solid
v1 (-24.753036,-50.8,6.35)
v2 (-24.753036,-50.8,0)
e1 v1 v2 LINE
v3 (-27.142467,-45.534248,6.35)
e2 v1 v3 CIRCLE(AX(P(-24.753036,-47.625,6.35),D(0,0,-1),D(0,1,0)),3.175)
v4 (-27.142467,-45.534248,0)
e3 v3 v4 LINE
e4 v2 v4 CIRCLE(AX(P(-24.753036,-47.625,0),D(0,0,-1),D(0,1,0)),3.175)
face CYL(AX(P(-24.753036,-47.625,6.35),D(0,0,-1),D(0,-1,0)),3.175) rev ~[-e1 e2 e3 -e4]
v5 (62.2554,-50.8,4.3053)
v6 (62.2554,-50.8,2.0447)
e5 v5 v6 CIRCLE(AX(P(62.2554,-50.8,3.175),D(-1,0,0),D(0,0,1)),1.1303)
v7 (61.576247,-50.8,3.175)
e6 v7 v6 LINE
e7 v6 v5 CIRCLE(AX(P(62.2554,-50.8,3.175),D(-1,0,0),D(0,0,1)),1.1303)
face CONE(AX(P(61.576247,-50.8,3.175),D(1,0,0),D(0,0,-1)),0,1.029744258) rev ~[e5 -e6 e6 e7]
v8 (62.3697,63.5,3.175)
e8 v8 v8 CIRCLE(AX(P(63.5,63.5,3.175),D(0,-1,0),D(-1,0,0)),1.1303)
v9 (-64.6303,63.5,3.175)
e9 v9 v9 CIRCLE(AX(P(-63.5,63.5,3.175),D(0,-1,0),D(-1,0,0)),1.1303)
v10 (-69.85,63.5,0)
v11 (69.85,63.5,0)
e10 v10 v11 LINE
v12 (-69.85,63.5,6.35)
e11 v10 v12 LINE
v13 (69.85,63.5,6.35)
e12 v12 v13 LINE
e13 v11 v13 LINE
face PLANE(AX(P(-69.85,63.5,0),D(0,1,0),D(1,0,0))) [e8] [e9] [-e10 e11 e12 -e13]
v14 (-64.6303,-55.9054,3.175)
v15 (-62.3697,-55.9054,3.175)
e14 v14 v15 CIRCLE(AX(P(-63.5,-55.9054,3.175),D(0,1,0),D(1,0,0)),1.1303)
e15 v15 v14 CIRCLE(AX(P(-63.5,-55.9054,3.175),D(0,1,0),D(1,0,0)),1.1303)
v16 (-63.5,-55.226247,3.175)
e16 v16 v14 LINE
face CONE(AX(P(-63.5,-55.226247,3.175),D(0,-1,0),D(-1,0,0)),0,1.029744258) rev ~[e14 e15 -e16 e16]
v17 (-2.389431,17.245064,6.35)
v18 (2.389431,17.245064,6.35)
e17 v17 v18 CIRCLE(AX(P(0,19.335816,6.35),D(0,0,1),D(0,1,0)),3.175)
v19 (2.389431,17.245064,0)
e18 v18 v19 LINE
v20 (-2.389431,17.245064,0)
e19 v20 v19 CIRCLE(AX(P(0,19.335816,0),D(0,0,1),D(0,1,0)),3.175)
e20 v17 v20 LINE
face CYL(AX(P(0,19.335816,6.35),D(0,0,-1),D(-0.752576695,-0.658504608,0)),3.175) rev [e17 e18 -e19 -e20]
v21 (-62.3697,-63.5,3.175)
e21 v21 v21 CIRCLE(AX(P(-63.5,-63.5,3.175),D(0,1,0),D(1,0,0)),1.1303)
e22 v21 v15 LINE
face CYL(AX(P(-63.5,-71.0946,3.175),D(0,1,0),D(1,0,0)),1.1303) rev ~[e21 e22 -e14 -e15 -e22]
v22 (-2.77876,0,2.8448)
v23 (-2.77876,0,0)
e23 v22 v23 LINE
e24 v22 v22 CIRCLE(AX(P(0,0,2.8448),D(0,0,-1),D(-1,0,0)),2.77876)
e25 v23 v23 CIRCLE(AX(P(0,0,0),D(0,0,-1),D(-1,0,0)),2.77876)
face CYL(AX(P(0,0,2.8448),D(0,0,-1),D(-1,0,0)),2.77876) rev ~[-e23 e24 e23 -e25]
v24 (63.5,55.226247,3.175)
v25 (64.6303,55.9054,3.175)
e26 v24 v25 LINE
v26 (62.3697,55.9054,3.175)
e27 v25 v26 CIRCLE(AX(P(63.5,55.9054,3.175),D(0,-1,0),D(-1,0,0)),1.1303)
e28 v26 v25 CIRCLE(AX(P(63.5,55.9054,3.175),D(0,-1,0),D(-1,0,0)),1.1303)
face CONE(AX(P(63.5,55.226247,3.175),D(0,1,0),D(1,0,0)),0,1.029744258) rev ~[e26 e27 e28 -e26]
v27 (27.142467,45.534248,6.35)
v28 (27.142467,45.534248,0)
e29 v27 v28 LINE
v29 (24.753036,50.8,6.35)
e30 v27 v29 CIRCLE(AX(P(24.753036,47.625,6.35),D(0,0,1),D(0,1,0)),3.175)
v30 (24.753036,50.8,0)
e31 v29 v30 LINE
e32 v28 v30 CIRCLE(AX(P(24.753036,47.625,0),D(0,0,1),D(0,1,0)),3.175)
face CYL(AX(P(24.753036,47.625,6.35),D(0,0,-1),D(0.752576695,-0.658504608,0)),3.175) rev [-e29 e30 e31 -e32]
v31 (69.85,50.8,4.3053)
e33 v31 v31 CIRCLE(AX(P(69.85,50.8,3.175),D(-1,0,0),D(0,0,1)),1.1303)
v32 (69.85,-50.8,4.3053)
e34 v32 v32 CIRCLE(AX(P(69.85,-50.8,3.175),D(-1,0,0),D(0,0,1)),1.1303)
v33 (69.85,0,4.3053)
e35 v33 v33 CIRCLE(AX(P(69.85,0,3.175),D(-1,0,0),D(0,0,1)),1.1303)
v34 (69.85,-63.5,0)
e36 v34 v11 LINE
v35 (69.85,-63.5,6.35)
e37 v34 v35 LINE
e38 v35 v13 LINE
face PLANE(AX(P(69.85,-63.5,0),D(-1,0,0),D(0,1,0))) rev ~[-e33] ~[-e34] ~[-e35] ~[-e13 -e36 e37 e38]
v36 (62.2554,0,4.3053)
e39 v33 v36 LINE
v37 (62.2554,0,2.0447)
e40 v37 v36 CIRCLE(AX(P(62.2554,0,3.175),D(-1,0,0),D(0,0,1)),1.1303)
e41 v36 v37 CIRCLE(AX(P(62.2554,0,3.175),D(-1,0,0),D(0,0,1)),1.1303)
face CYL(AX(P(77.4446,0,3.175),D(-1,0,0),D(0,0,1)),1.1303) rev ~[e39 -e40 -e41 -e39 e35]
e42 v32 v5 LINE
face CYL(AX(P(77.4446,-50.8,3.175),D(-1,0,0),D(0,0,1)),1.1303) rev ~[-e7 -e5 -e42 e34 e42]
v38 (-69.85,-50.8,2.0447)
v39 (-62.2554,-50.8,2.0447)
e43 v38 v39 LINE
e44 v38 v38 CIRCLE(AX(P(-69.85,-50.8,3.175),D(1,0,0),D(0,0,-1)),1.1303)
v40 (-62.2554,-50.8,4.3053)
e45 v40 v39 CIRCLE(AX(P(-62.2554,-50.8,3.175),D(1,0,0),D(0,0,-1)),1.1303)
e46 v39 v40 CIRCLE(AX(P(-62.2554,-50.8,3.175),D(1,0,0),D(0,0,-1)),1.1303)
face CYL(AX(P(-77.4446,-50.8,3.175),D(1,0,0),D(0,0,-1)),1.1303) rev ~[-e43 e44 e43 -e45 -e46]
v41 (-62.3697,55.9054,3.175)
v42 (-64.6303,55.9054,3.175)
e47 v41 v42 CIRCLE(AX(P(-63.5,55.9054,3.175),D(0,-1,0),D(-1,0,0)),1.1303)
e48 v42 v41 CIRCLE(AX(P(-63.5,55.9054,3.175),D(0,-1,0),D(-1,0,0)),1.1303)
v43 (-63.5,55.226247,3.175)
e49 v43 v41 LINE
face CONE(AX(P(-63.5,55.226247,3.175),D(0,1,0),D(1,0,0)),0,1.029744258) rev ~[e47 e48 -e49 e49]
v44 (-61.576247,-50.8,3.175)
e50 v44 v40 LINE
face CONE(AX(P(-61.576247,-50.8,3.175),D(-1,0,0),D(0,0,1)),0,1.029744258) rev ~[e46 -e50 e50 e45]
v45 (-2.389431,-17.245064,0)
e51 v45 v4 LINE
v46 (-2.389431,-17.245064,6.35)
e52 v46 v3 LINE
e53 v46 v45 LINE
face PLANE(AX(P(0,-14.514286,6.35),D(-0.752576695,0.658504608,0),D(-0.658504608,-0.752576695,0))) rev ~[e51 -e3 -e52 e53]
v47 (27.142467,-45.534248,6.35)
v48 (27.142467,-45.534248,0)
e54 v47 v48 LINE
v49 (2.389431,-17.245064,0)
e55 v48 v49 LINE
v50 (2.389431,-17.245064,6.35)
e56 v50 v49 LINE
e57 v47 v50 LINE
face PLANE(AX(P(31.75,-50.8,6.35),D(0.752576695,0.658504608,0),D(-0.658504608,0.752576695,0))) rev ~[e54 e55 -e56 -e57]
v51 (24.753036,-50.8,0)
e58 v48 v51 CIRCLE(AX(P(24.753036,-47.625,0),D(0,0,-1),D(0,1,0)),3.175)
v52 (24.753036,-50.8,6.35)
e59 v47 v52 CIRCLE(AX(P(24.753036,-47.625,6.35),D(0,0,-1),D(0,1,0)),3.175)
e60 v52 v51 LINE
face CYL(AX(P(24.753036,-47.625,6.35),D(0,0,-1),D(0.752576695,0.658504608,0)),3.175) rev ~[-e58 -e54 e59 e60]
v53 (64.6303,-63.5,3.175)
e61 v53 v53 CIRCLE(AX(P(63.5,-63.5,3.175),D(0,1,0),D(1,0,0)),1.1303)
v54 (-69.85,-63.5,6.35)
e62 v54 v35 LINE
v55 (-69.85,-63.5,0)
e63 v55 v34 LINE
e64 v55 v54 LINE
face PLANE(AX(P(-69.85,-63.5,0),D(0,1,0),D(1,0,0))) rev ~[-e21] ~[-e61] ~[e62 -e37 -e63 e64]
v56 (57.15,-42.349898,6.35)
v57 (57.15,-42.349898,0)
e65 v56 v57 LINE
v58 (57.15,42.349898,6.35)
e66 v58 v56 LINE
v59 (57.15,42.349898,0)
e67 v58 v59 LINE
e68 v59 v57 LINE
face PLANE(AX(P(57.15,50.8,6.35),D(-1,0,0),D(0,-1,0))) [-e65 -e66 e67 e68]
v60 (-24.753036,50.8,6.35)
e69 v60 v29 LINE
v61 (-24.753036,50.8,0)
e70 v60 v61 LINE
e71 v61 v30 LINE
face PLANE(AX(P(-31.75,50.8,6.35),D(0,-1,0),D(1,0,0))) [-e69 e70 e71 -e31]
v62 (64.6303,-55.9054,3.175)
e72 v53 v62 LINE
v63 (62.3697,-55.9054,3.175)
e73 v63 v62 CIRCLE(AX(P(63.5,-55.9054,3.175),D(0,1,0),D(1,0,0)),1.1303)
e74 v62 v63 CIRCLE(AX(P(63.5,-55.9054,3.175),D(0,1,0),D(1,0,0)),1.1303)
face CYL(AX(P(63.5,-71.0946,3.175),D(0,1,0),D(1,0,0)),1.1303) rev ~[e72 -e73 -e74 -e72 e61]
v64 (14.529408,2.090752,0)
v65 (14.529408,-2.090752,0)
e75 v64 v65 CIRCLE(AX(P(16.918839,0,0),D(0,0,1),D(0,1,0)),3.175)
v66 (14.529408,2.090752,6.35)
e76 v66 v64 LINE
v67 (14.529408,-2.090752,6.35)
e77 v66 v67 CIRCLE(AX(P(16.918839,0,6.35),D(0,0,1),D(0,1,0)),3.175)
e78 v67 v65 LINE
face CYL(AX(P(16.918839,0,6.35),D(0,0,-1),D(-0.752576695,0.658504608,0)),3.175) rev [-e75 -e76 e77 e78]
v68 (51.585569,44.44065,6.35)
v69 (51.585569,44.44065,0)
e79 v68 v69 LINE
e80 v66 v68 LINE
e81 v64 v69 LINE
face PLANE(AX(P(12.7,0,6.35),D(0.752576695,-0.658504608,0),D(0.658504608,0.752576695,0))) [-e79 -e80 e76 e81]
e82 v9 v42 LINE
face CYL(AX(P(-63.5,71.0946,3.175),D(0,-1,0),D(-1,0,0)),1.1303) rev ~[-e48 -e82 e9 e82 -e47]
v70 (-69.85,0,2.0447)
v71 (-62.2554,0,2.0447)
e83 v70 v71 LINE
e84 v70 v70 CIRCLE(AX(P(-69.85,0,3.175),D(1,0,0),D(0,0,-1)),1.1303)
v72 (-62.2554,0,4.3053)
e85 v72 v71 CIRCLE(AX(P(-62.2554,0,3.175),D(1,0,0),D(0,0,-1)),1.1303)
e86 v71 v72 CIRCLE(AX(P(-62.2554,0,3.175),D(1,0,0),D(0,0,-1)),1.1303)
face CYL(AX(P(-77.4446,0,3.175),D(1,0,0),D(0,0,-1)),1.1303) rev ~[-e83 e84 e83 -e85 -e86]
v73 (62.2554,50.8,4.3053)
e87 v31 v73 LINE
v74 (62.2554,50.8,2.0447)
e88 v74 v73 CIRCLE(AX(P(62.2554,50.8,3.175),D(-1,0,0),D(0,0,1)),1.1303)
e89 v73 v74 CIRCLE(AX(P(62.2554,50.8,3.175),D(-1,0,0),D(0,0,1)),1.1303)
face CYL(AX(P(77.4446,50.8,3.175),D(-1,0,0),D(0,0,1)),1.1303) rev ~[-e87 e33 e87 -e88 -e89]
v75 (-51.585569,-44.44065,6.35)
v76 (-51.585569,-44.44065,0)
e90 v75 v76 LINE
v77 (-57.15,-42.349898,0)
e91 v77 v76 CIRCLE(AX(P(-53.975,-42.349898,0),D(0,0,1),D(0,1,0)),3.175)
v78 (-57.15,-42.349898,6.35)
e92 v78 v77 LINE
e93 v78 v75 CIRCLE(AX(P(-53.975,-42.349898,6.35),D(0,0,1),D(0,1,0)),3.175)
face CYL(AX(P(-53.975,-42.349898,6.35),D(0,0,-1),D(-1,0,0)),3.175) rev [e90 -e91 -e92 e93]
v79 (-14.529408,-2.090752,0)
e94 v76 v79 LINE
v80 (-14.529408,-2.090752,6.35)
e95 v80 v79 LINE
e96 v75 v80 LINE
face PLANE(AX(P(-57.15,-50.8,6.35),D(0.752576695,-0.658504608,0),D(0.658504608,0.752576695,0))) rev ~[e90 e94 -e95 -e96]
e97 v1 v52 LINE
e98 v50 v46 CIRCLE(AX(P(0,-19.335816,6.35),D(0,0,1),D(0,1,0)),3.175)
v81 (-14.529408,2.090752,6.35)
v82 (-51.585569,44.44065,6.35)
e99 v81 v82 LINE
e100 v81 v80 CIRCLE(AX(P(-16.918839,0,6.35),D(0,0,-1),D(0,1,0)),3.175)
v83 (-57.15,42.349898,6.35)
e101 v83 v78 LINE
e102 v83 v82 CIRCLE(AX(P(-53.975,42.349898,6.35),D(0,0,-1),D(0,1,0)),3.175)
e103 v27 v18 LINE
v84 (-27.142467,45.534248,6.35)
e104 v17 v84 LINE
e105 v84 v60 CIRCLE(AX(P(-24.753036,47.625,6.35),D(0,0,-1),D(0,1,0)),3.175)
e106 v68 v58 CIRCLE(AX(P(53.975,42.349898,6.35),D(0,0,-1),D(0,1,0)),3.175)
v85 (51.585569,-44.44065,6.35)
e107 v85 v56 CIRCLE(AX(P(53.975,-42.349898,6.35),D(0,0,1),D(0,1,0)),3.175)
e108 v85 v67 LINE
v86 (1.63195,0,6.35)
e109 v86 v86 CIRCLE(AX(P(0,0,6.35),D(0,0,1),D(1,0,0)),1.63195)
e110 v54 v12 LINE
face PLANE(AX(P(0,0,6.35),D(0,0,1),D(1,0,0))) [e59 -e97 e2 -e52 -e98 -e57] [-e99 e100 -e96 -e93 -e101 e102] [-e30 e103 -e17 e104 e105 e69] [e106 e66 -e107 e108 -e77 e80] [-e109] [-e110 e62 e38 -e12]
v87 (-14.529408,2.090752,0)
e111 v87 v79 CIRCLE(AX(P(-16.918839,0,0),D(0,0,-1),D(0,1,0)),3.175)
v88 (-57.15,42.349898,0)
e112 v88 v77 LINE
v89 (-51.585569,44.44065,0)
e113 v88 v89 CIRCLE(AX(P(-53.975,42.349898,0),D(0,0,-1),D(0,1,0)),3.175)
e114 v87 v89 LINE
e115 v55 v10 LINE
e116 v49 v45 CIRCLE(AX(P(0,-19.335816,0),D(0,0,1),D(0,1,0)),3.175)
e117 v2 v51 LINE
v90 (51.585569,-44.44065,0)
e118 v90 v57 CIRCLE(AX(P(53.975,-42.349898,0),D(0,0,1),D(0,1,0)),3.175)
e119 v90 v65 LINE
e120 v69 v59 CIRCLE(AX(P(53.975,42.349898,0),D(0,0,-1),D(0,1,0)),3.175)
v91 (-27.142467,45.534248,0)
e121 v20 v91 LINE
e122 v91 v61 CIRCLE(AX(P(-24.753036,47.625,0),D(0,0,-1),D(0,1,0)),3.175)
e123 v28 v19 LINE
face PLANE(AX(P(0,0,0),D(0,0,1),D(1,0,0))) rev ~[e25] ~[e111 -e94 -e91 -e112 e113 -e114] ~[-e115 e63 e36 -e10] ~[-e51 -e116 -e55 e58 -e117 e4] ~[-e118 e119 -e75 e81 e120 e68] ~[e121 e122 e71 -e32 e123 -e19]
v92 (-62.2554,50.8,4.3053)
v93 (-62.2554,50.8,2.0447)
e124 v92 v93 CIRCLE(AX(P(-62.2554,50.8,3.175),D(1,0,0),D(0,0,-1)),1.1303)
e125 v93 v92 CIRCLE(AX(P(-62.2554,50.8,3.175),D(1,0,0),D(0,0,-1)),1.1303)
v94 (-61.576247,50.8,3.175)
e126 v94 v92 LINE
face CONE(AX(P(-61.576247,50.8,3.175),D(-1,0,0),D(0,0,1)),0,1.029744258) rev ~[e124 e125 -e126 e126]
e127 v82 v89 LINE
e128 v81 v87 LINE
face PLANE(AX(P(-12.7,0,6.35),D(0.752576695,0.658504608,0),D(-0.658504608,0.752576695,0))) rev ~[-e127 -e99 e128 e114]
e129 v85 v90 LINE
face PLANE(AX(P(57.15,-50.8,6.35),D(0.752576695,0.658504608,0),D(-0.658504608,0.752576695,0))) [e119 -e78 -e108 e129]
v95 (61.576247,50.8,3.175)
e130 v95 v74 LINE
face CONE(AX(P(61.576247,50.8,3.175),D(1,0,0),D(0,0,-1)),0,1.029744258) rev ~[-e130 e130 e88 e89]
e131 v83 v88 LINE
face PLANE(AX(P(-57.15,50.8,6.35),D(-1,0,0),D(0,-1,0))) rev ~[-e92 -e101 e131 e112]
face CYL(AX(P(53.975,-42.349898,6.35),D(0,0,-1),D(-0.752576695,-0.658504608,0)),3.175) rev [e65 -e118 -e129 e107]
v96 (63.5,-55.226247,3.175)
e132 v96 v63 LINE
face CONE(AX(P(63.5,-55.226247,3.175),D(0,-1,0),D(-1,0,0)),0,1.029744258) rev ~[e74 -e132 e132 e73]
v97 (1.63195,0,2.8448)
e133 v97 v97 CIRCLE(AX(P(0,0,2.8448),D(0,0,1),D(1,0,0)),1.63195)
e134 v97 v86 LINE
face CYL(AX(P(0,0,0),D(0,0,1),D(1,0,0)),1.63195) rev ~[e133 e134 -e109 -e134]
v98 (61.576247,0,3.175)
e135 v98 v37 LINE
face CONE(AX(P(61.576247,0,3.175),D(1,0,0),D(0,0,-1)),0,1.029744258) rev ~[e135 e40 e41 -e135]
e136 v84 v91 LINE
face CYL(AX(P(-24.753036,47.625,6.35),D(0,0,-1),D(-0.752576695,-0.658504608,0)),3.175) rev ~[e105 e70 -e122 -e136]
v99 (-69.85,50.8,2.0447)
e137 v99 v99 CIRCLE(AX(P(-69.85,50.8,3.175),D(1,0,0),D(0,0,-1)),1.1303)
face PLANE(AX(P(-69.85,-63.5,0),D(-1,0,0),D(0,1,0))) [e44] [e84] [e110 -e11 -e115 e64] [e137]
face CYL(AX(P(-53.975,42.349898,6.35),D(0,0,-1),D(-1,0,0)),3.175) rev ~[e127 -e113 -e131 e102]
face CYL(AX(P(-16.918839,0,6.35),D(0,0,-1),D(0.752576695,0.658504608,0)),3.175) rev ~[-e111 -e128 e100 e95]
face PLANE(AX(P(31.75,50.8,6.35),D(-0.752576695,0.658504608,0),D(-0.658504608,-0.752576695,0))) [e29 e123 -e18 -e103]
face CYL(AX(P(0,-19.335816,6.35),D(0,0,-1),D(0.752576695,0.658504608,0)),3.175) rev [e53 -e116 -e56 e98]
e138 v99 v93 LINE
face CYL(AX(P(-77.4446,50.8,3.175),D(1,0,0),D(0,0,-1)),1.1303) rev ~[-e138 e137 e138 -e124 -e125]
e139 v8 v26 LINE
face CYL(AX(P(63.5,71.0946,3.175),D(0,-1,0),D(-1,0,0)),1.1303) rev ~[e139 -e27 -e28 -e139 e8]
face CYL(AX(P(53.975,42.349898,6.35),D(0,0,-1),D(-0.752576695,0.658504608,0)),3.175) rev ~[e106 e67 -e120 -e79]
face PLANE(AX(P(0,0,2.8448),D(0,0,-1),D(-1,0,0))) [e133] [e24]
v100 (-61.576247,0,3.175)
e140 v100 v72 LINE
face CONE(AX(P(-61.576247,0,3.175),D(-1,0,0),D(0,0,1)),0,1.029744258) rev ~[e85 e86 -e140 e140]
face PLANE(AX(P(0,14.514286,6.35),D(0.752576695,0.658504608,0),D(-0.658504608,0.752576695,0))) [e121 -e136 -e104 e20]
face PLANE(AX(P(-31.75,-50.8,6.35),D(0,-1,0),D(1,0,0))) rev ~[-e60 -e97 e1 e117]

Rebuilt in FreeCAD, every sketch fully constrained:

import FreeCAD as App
import Part
import Sketcher
Q = App.Units.Quantity


def edges_at(feature, points):
    """Names of the edges that pass closest to the given points."""
    edges = feature.Shape.Edges
    near = lambda p: min(range(len(edges)), key=lambda i: edges[i].distToShape(Part.Vertex(*p))[0])
    return sorted({f"Edge{near(p) + 1}" for p in points})


def add_polygon(sketch, points):
    """Adds a closed chain of lines whose ends are joined by coincident constraints."""
    first, n = sketch.GeometryCount, len(points)
    for a, b in zip(points, points[1:] + points[:1]):
        sketch.addGeometry(Part.LineSegment(App.Vector(*a, 0), App.Vector(*b, 0)), False)
    for i in range(n):
        sketch.addConstraint(Sketcher.Constraint("Coincident", first + i, 2, first + (i + 1) % n, 1))

doc = App.newDocument("Part")
body = doc.addObject("PartDesign::Body", "Body")

sketch1 = body.newObject("Sketcher::SketchObject", "Sketch")
sketch1.AttachmentSupport = (doc.getObject("XY_Plane"), [""])
sketch1.MapMode = "FlatFace"
add_polygon(sketch1, [(-70, 64), (-70, -64), (70, -64), (70, 64)])
sketch1.addConstraint([
    Sketcher.Constraint("Vertical", 0),
    Sketcher.Constraint("Horizontal", 1),
    Sketcher.Constraint("Vertical", 2),
    Sketcher.Constraint("Horizontal", 3),
    Sketcher.Constraint("Symmetric", 0, 2, 2, 2, -1, 1),
    Sketcher.Constraint("DistanceY", 0, 2, 0, 1, Q("5 in")),
    Sketcher.Constraint("DistanceX", 1, 1, 1, 2, Q("5.5 in")),
])
pad1 = body.newObject("PartDesign::Pad", "Pad")
pad1.Profile = sketch1
pad1.Length = Q("0.25 in")

sketch2 = body.newObject("Sketcher::SketchObject", "Sketch001")
sketch2.AttachmentSupport = (doc.getObject("XY_Plane"), [""])
sketch2.MapMode = "FlatFace"
sketch2.AttachmentOffset = App.Placement(App.Vector(0, 0, 0.25 * 25.4), App.Rotation())
add_polygon(sketch2, [(-57, 51), (-57, -51), (-13, 0)])
add_polygon(sketch2, [(57, -51), (57, 51), (13, 0)])
add_polygon(sketch2, [(32, 51), (-32, 51), (0, 15)])
add_polygon(sketch2, [(32, -51), (0, -15), (-32, -51)])
sketch2.addConstraint([
    Sketcher.Constraint("Vertical", 0),
    Sketcher.Constraint("Vertical", 3),
    Sketcher.Constraint("Horizontal", 6),
    Sketcher.Constraint("Horizontal", 11),
    Sketcher.Constraint("Symmetric", 0, 2, 3, 2, -1, 1),
    Sketcher.Constraint("Symmetric", 1, 2, 4, 2, -1, 1),
    Sketcher.Constraint("Symmetric", 7, 2, 9, 2, -1, 1),
    Sketcher.Constraint("Symmetric", 8, 2, 10, 2, -1, 1),
    Sketcher.Constraint("PointOnObject", 1, 2, -1),
    Sketcher.Constraint("PointOnObject", 7, 2, -2),
    Sketcher.Constraint("Parallel", 2, 5),
    Sketcher.Constraint("Parallel", 5, 7),
    Sketcher.Constraint("Parallel", 4, 8),
    Sketcher.Constraint("Parallel", 7, 9),
    Sketcher.Constraint("Horizontal", 2, 2, 3, 2),
    Sketcher.Constraint("Horizontal", 3, 2, 6, 2),
    Sketcher.Constraint("DistanceY", 0, 2, 0, 1, Q("4 in")),
    Sketcher.Constraint("DistanceX", 6, 2, 6, 1, Q("2.5 in")),
    Sketcher.Constraint("DistanceX", 1, 2, 4, 2, Q("1 in")),
    Sketcher.Constraint("DistanceX", 2, 2, 6, 2, Q("1 in")),
])
pocket1 = body.newObject("PartDesign::Pocket", "Pocket")
pocket1.Profile = sketch2
pocket1.Type = "ThroughAll"

sketch3 = body.newObject("Sketcher::SketchObject", "Sketch002")
sketch3.AttachmentSupport = (doc.getObject("XZ_Plane"), [""])
sketch3.MapMode = "FlatFace"
sketch3.AttachmentOffset = App.Placement(App.Vector(0, 0, 2.5 * 25.4), App.Rotation())
sketch3.addGeometry([
    Part.Circle(App.Vector(63.5, 3.2, 0), App.Vector(0, 0, 1), 1.1),
    Part.Circle(App.Vector(-63.5, 3.2, 0), App.Vector(0, 0, 1), 1.1),
], False)
sketch3.addConstraint([
    Sketcher.Constraint("Equal", 0, 1),
    Sketcher.Constraint("Symmetric", 0, 3, 1, 3, -2),
    Sketcher.Constraint("Diameter", 0, Q("0.089 in")),
    Sketcher.Constraint("DistanceX", 1, 3, 0, 3, Q("5 in")),
    Sketcher.Constraint("DistanceY", -1, 1, 0, 3, Q("0.125 in")),
])
doc.recompute()
hole = body.newObject("PartDesign::Hole", "Hole")
hole.Profile = sketch3
hole.ThreadType = "None"
hole.Diameter = Q("0.089 in")
hole.DepthType = "Dimension"
hole.Depth = Q("0.299 in")
hole.DrillPoint = "Angled"
hole.DrillPointAngle = 118

sketch4 = body.newObject("Sketcher::SketchObject", "Sketch003")
sketch4.AttachmentSupport = (doc.getObject("YZ_Plane"), [""])
sketch4.MapMode = "FlatFace"
sketch4.AttachmentOffset = App.Placement(App.Vector(0, 0, -2.75 * 25.4), App.Rotation())
sketch4.addGeometry([
    Part.Circle(App.Vector(0, 3.2, 0), App.Vector(0, 0, 1), 1.1),
    Part.Circle(App.Vector(50.8, 3.2, 0), App.Vector(0, 0, 1), 1.1),
    Part.Circle(App.Vector(-50.8, 3.2, 0), App.Vector(0, 0, 1), 1.1),
], False)
sketch4.addConstraint([
    Sketcher.Constraint("Equal", 0, 1),
    Sketcher.Constraint("Equal", 1, 2),
    Sketcher.Constraint("Symmetric", 1, 3, 2, 3, -2),
    Sketcher.Constraint("PointOnObject", 0, 3, -2),
    Sketcher.Constraint("Horizontal", 0, 3, 1, 3),
    Sketcher.Constraint("Diameter", 0, Q("0.089 in")),
    Sketcher.Constraint("DistanceX", -1, 1, 1, 3, Q("2 in")),
    Sketcher.Constraint("DistanceY", -1, 1, 0, 3, Q("0.125 in")),
])
doc.recompute()
hole2 = body.newObject("PartDesign::Hole", "Hole001")
hole2.Profile = sketch4
hole2.ThreadType = "None"
hole2.Diameter = Q("0.089 in")
hole2.DepthType = "Dimension"
hole2.Depth = Q("0.299 in")
hole2.DrillPoint = "Angled"
hole2.DrillPointAngle = 118
hole2.Reversed = True

sketch5 = body.newObject("Sketcher::SketchObject", "Sketch004")
sketch5.AttachmentSupport = (doc.getObject("YZ_Plane"), [""])
sketch5.MapMode = "FlatFace"
sketch5.AttachmentOffset = App.Placement(App.Vector(0, 0, 2.75 * 25.4), App.Rotation())
sketch5.addGeometry([
    Part.Circle(App.Vector(50.8, 3.2, 0), App.Vector(0, 0, 1), 1.1),
    Part.Circle(App.Vector(0, 3.2, 0), App.Vector(0, 0, 1), 1.1),
    Part.Circle(App.Vector(-50.8, 3.2, 0), App.Vector(0, 0, 1), 1.1),
], False)
sketch5.addConstraint([
    Sketcher.Constraint("Equal", 0, 1),
    Sketcher.Constraint("Equal", 1, 2),
    Sketcher.Constraint("Symmetric", 0, 3, 2, 3, -2),
    Sketcher.Constraint("PointOnObject", 1, 3, -2),
    Sketcher.Constraint("Horizontal", 0, 3, 1, 3),
    Sketcher.Constraint("Diameter", 0, Q("0.089 in")),
    Sketcher.Constraint("DistanceX", -1, 1, 0, 3, Q("2 in")),
    Sketcher.Constraint("DistanceY", -1, 1, 0, 3, Q("0.125 in")),
])
doc.recompute()
hole3 = body.newObject("PartDesign::Hole", "Hole002")
hole3.Profile = sketch5
hole3.ThreadType = "None"
hole3.Diameter = Q("0.089 in")
hole3.DepthType = "Dimension"
hole3.Depth = Q("0.299 in")
hole3.DrillPoint = "Angled"
hole3.DrillPointAngle = 118

sketch6 = body.newObject("Sketcher::SketchObject", "Sketch005")
sketch6.AttachmentSupport = (doc.getObject("XY_Plane"), [""])
sketch6.MapMode = "FlatFace"
sketch6.addGeometry(Part.Circle(App.Vector(0, 0, 0), App.Vector(0, 0, 1), 1.6), False)
sketch6.addConstraint([
    Sketcher.Constraint("Coincident", 0, 3, -1, 1),
    Sketcher.Constraint("Diameter", 0, Q("0.1285 in")),
])
doc.recompute()
hole4 = body.newObject("PartDesign::Hole", "Hole003")
hole4.Profile = sketch6
hole4.ThreadType = "None"
hole4.Diameter = Q("0.1285 in")
hole4.DepthType = "Dimension"
hole4.Depth = Q("0.299 in")
hole4.DrillPoint = "Angled"
hole4.DrillPointAngle = 118
hole4.HoleCutType = "Counterbore"
hole4.HoleCutDiameter = Q("0.2188 in")
hole4.HoleCutDepth = Q("0.112 in")
hole4.Reversed = True

sketch7 = body.newObject("Sketcher::SketchObject", "Sketch006")
sketch7.AttachmentSupport = (doc.getObject("XZ_Plane"), [""])
sketch7.MapMode = "FlatFace"
sketch7.AttachmentOffset = App.Placement(App.Vector(0, 0, -2.5 * 25.4), App.Rotation())
sketch7.addGeometry([
    Part.Circle(App.Vector(-63.5, 3.2, 0), App.Vector(0, 0, 1), 1.1),
    Part.Circle(App.Vector(63.5, 3.2, 0), App.Vector(0, 0, 1), 1.1),
], False)
sketch7.addConstraint([
    Sketcher.Constraint("Equal", 0, 1),
    Sketcher.Constraint("Symmetric", 0, 3, 1, 3, -2),
    Sketcher.Constraint("Diameter", 0, Q("0.089 in")),
    Sketcher.Constraint("DistanceX", 0, 3, 1, 3, Q("5 in")),
    Sketcher.Constraint("DistanceY", -1, 1, 0, 3, Q("0.125 in")),
])
doc.recompute()
hole5 = body.newObject("PartDesign::Hole", "Hole004")
hole5.Profile = sketch7
hole5.ThreadType = "None"
hole5.Diameter = Q("0.089 in")
hole5.DepthType = "Dimension"
hole5.Depth = Q("0.299 in")
hole5.DrillPoint = "Angled"
hole5.DrillPointAngle = 118
hole5.Reversed = True
doc.recompute()

fillet = body.newObject("PartDesign::Fillet", "Fillet")
fillet.Base = (hole5, edges_at(hole5, [
    (0, 14.514, 3.175),
    (-31.75, 50.8, 3.175),
    (31.75, 50.8, 3.175),
    (31.75, -50.8, 3.175),
    (-31.75, -50.8, 3.175),
    (0, -14.514, 3.175),
    (12.7, 0, 3.175),
    (57.15, 50.8, 3.175),
    (57.15, -50.8, 3.175),
    (-57.15, 50.8, 3.175),
    (-12.7, 0, 3.175),
    (-57.15, -50.8, 3.175),
]))
fillet.Radius = Q("0.125 in")

doc.recompute()
